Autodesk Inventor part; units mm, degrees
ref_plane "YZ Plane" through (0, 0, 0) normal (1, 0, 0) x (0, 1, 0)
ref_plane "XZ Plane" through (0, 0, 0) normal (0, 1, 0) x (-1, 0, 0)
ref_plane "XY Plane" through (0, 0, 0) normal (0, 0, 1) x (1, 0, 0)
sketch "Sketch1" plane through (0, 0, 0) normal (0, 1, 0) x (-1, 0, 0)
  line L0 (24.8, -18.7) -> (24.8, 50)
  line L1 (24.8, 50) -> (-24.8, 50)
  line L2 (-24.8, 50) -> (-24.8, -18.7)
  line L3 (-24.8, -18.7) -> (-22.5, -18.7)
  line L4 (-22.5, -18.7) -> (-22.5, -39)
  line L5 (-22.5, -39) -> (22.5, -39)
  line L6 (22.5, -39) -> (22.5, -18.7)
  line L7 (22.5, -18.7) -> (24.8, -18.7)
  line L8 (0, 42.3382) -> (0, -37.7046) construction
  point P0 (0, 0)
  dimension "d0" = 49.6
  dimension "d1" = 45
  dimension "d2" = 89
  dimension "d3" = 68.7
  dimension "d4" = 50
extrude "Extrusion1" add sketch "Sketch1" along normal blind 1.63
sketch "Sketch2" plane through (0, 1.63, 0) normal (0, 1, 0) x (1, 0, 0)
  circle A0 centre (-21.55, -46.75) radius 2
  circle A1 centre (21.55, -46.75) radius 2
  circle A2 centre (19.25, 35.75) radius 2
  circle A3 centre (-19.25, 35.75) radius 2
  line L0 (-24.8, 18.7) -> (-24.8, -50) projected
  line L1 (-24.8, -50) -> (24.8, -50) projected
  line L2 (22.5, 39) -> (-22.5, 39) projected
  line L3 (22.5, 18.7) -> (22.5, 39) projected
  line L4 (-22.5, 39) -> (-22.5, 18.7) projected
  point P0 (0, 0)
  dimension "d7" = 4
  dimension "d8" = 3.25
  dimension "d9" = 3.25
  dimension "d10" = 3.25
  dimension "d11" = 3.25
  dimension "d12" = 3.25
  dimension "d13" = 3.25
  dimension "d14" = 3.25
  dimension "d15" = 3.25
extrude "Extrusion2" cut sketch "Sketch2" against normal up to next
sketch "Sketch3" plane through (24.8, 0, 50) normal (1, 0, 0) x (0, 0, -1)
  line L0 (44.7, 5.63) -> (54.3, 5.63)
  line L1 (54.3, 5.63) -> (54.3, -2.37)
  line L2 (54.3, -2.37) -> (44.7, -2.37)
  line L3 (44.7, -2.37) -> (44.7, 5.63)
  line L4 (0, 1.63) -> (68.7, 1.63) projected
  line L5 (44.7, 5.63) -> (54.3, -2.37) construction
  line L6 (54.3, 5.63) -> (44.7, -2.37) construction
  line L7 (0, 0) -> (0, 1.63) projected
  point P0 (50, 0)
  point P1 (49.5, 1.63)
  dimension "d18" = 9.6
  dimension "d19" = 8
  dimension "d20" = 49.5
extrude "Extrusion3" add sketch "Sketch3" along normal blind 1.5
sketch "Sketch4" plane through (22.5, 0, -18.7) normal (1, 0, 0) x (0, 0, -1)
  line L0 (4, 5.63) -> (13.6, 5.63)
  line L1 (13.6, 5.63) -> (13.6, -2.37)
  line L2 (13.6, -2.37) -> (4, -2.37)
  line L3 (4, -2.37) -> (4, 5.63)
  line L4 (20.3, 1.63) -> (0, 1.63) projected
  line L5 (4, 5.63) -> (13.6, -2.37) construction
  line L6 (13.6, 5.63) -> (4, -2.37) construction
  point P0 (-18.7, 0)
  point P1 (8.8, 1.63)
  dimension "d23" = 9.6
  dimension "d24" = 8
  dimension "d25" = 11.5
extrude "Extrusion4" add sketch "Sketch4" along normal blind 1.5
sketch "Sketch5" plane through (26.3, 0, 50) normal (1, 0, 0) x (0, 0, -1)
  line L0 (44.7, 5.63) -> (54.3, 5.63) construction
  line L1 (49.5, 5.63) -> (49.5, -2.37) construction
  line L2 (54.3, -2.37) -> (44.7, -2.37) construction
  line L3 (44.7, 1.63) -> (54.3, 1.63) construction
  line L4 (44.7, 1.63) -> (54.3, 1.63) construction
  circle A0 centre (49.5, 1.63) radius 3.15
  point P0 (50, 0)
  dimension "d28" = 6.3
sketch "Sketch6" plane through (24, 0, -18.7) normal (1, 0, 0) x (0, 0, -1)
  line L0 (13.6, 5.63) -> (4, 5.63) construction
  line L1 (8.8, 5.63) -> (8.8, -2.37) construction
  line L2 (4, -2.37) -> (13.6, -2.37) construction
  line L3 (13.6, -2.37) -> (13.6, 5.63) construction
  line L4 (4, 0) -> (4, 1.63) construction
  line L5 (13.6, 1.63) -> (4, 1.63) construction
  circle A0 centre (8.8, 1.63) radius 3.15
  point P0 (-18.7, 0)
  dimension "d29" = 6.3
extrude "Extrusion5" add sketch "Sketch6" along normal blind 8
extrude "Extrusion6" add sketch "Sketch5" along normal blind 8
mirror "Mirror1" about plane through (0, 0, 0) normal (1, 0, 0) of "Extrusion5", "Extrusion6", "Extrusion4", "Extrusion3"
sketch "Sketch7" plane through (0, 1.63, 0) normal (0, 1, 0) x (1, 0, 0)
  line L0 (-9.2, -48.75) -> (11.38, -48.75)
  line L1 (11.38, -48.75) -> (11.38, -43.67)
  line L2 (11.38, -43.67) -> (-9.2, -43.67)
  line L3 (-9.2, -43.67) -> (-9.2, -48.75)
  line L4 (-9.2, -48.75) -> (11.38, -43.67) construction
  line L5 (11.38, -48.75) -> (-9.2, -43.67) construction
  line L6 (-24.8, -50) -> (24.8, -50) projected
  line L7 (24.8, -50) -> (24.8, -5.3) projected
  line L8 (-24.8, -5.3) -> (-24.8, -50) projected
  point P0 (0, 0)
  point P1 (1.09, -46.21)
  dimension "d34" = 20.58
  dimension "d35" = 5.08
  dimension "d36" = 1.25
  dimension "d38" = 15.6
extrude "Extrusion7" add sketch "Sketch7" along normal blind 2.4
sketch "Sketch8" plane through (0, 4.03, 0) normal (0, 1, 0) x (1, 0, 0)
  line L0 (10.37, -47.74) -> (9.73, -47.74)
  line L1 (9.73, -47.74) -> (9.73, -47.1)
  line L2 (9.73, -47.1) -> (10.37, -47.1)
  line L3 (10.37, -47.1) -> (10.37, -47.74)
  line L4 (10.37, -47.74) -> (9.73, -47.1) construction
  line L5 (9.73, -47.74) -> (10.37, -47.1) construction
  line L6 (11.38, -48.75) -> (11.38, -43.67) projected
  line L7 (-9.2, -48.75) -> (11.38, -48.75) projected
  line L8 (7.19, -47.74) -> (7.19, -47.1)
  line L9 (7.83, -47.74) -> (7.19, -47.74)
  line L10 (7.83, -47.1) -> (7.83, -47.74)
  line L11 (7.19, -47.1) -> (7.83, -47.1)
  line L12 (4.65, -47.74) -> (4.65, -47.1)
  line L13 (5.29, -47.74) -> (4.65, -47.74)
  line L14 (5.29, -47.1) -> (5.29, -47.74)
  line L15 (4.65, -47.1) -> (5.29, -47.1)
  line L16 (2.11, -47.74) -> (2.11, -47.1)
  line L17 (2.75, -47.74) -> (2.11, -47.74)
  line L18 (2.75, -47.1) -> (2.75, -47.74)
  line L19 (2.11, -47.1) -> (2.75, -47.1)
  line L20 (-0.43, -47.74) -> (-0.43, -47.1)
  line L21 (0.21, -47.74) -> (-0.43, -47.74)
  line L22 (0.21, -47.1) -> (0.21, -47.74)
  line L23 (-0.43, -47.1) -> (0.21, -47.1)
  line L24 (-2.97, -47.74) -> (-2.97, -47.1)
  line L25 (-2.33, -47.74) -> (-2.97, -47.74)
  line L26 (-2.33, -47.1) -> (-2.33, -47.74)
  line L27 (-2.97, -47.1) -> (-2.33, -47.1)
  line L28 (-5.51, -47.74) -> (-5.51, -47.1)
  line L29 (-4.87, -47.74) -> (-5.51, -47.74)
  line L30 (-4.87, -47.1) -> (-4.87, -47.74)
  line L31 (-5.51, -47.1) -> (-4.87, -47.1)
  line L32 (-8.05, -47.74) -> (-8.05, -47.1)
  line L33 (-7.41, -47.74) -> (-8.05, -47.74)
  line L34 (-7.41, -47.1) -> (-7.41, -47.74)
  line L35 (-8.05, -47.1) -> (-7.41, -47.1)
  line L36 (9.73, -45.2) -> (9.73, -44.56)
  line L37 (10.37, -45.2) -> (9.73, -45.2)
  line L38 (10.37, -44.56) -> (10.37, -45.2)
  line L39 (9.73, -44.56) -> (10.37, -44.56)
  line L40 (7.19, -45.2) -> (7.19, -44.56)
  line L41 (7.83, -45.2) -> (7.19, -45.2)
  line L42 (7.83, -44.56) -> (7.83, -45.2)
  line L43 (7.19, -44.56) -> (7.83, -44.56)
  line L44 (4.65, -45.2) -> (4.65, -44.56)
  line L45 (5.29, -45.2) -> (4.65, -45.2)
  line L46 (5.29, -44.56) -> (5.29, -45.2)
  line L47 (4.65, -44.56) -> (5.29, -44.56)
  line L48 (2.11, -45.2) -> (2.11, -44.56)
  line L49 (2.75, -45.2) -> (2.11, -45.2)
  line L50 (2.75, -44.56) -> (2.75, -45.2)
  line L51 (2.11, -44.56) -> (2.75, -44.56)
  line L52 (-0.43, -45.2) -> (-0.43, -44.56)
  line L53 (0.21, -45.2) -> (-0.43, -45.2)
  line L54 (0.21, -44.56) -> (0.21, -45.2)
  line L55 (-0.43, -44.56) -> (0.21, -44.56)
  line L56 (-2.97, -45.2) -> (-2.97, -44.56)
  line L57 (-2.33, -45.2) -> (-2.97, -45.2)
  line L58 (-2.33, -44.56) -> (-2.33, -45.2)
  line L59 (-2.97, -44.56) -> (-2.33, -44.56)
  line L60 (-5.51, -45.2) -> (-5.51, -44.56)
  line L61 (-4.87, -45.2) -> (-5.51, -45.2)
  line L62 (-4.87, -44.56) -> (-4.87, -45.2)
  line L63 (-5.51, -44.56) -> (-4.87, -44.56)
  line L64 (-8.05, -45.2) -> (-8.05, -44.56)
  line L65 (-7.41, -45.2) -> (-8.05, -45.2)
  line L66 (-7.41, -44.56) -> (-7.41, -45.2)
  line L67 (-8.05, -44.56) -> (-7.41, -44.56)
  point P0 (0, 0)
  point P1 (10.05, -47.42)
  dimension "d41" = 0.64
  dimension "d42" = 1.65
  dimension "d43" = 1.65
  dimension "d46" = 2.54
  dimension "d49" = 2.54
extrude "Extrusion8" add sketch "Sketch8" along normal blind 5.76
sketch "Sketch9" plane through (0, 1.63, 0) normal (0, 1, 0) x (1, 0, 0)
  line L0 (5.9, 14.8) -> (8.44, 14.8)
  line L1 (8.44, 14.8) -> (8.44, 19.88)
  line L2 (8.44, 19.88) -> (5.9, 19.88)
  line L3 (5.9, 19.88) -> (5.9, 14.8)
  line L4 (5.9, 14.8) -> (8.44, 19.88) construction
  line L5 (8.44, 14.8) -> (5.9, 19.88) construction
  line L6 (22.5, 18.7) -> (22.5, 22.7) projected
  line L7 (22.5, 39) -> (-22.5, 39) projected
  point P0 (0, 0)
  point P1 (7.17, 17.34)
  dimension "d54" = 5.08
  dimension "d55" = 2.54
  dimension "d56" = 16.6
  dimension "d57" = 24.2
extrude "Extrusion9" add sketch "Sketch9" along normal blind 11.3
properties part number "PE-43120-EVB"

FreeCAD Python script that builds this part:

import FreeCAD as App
import Part
import Sketcher

V = App.Vector

doc = App.newDocument("Part")
body = doc.addObject("PartDesign::Body", "Body")

# Sketch on XZ plane
sketch1 = doc.addObject("Sketcher::SketchObject", "Sketch")
body.addObject(sketch1)
sketch1.AttachmentSupport = (doc.XZ_Plane, [""])
sketch1.MapMode = "FlatFace"
sketch1.addGeometry([
    Part.LineSegment(V(-22.5, -18.7, 0), V(-24.8, -18.7, 0)),  # 0
    Part.LineSegment(V(-24.8, -18.7, 0), V(-24.8, 50, 0)),  # 1
    Part.LineSegment(V(-24.8, 50, 0), V(24.8, 50, 0)),  # 2
    Part.LineSegment(V(24.8, 50, 0), V(24.8, -18.7, 0)),  # 3
    Part.LineSegment(V(24.8, -18.7, 0), V(22.5, -18.7, 0)),  # 4
    Part.LineSegment(V(22.5, -18.7, 0), V(22.5, -39, 0)),  # 5
    Part.LineSegment(V(22.5, -39, 0), V(-22.5, -39, 0)),  # 6
    Part.LineSegment(V(-22.5, -39, 0), V(-22.5, -18.7, 0)),  # 7
], False)
sketch1.addConstraint([
    Sketcher.Constraint("Coincident", 0, 2, 1, 1),
    Sketcher.Constraint("Coincident", 1, 2, 2, 1),
    Sketcher.Constraint("Coincident", 2, 2, 3, 1),
    Sketcher.Constraint("Coincident", 3, 2, 4, 1),
    Sketcher.Constraint("Coincident", 4, 2, 5, 1),
    Sketcher.Constraint("Coincident", 5, 2, 6, 1),
    Sketcher.Constraint("Coincident", 6, 2, 7, 1),
    Sketcher.Constraint("Coincident", 7, 2, 0, 1),
    Sketcher.Constraint("Horizontal", 0),
    Sketcher.Constraint("Vertical", 1),
    Sketcher.Constraint("Horizontal", 2),
    Sketcher.Constraint("Vertical", 3),
    Sketcher.Constraint("Horizontal", 4),
    Sketcher.Constraint("Vertical", 5),
    Sketcher.Constraint("Horizontal", 6),
    Sketcher.Constraint("Vertical", 7),
    Sketcher.Constraint("Symmetric", 0, 2, 3, 2, -2),
    Sketcher.Constraint("Equal", 0, 4),
    Sketcher.Constraint("DistanceX", 6, 2, 6, 1, 45.0),
    Sketcher.Constraint("DistanceX", 2, 1, 2, 2, 49.6),
    Sketcher.Constraint("DistanceY", 1, 1, 1, 2, 68.7),
    Sketcher.Constraint("DistanceY", -1, 1, 1, 2, 50.0),
    Sketcher.Constraint("DistanceY", 5, 2, 2, 2, 89.0),
])
pad1 = doc.addObject("PartDesign::Pad", "Pad")
body.addObject(pad1)
pad1.Profile = sketch1
pad1.Length = 1.63
pad1.Reversed = True

# Sketch on XZ plane
sketch2 = doc.addObject("Sketcher::SketchObject", "Sketch001")
body.addObject(sketch2)
sketch2.AttachmentSupport = (doc.XZ_Plane, [""])
sketch2.MapMode = "FlatFace"
sketch2.AttachmentOffset = App.Placement(V(0, 0, -1.63), App.Rotation())
sketch2.addGeometry([
    Part.Circle(V(-21.6, 46.8, 0), V(0, 0, 1), 2),
    Part.Circle(V(21.6, 46.8, 0), V(0, 0, 1), 2),
    Part.Circle(V(19.2, -35.8, 0), V(0, 0, 1), 2),
    Part.Circle(V(-19.2, -35.8, 0), V(0, 0, 1), 2),
], False)
sketch2.addConstraint([
    Sketcher.Constraint("Equal", 0, 1),
    Sketcher.Constraint("Equal", 1, 2),
    Sketcher.Constraint("Equal", 2, 3),
    Sketcher.Constraint("Symmetric", 0, 3, 1, 3, -2),
    Sketcher.Constraint("Symmetric", 2, 3, 3, 3, -2),
    Sketcher.Constraint("Diameter", 0, 4.0),
    Sketcher.Constraint("DistanceX", 0, 3, 1, 3, 43.1),
    Sketcher.Constraint("DistanceX", 2, 3, 1, 3, 2.3),
    Sketcher.Constraint("DistanceY", 2, 3, 1, 3, 82.5),
    Sketcher.Constraint("DistanceY", -1, 1, 0, 3, 46.75),
])
pocket1 = doc.addObject("PartDesign::Pocket", "Pocket")
body.addObject(pocket1)
pocket1.Profile = sketch2
pocket1.Type = "UpToFirst"
pocket1.Reversed = True

# Sketch on YZ plane
sketch3 = doc.addObject("Sketcher::SketchObject", "Sketch002")
body.addObject(sketch3)
sketch3.AttachmentSupport = (doc.YZ_Plane, [""])
sketch3.MapMode = "FlatFace"
sketch3.AttachmentOffset = App.Placement(V(0, 0, 24.8), App.Rotation())
sketch3.addGeometry([
    Part.LineSegment(V(6, -4, 0), V(6, 5, 0)),
    Part.LineSegment(V(6, 5, 0), V(-2, 5, 0)),
    Part.LineSegment(V(-2, 5, 0), V(-2, -4, 0)),
    Part.LineSegment(V(-2, -4, 0), V(6, -4, 0)),
], False)
sketch3.addConstraint([
    Sketcher.Constraint("Coincident", 0, 2, 1, 1),
    Sketcher.Constraint("Coincident", 1, 2, 2, 1),
    Sketcher.Constraint("Coincident", 2, 2, 3, 1),
    Sketcher.Constraint("Coincident", 3, 2, 0, 1),
    Sketcher.Constraint("Vertical", 0),
    Sketcher.Constraint("Horizontal", 1),
    Sketcher.Constraint("Vertical", 2),
    Sketcher.Constraint("Horizontal", 3),
    Sketcher.Constraint("DistanceX", 1, 2, 1, 1, 8.0),
    Sketcher.Constraint("DistanceY", 0, 1, 0, 2, 9.6),
    Sketcher.Constraint("DistanceY", -1, 1, 0, 2, 5.3),
    Sketcher.Constraint("DistanceX", -1, 1, 0, 2, 5.63),
])
pad2 = doc.addObject("PartDesign::Pad", "Pad001")
body.addObject(pad2)
pad2.Profile = sketch3
pad2.Length = 1.5

# Sketch on YZ plane
sketch4 = doc.addObject("Sketcher::SketchObject", "Sketch003")
body.addObject(sketch4)
sketch4.AttachmentSupport = (doc.YZ_Plane, [""])
sketch4.MapMode = "FlatFace"
sketch4.AttachmentOffset = App.Placement(V(0, 0, 22.5), App.Rotation())
sketch4.addGeometry([
    Part.LineSegment(V(6, -32, 0), V(6, -23, 0)),
    Part.LineSegment(V(6, -23, 0), V(-2, -23, 0)),
    Part.LineSegment(V(-2, -23, 0), V(-2, -32, 0)),
    Part.LineSegment(V(-2, -32, 0), V(6, -32, 0)),
], False)
sketch4.addConstraint([
    Sketcher.Constraint("Coincident", 0, 2, 1, 1),
    Sketcher.Constraint("Coincident", 1, 2, 2, 1),
    Sketcher.Constraint("Coincident", 2, 2, 3, 1),
    Sketcher.Constraint("Coincident", 3, 2, 0, 1),
    Sketcher.Constraint("Vertical", 0),
    Sketcher.Constraint("Horizontal", 1),
    Sketcher.Constraint("Vertical", 2),
    Sketcher.Constraint("Horizontal", 3),
    Sketcher.Constraint("DistanceX", 1, 2, 1, 1, 8.0),
    Sketcher.Constraint("DistanceY", 0, 1, 0, 2, 9.6),
    Sketcher.Constraint("DistanceY", 0, 2, -1, 1, 22.7),
    Sketcher.Constraint("DistanceX", -1, 1, 0, 2, 5.63),
])
pad3 = doc.addObject("PartDesign::Pad", "Pad002")
body.addObject(pad3)
pad3.Profile = sketch4
pad3.Length = 1.5

# Sketch on YZ plane
sketch5 = doc.addObject("Sketcher::SketchObject", "Sketch004")
body.addObject(sketch5)
sketch5.AttachmentSupport = (doc.YZ_Plane, [""])
sketch5.MapMode = "FlatFace"
sketch5.AttachmentOffset = App.Placement(V(0, 0, 24), App.Rotation())
sketch5.addGeometry(Part.Circle(V(1.6, -27.5, 0), V(0, 0, 1), 3.1), False)
sketch5.addConstraint([
    Sketcher.Constraint("Diameter", 0, 6.3),
    Sketcher.Constraint("DistanceY", 0, 3, -1, 1, 27.5),
    Sketcher.Constraint("DistanceX", -1, 1, 0, 3, 1.63),
])
pad4 = doc.addObject("PartDesign::Pad", "Pad003")
body.addObject(pad4)
pad4.Profile = sketch5
pad4.Length = 8

# Sketch on YZ plane
sketch6 = doc.addObject("Sketcher::SketchObject", "Sketch005")
body.addObject(sketch6)
sketch6.AttachmentSupport = (doc.YZ_Plane, [""])
sketch6.MapMode = "FlatFace"
sketch6.AttachmentOffset = App.Placement(V(0, 0, 26.3), App.Rotation())
sketch6.addGeometry(Part.Circle(V(1.6, 0.5, 0), V(0, 0, 1), 3.1), False)
sketch6.addConstraint([
    Sketcher.Constraint("Diameter", 0, 6.3),
    Sketcher.Constraint("DistanceY", -1, 1, 0, 3, 0.5),
    Sketcher.Constraint("DistanceX", -1, 1, 0, 3, 1.63),
])
pad5 = doc.addObject("PartDesign::Pad", "Pad004")
body.addObject(pad5)
pad5.Profile = sketch6
pad5.Length = 8
doc.recompute()

mirrored = doc.addObject("PartDesign::Mirrored", "Mirrored")
body.addObject(mirrored)
mirrored.Originals = [pad4, pad5, pad3, pad2]
mirrored.MirrorPlane = (doc.YZ_Plane, [""])
body.Tip = mirrored

# Sketch on XZ plane
sketch7 = doc.addObject("Sketcher::SketchObject", "Sketch006")
body.addObject(sketch7)
sketch7.AttachmentSupport = (doc.XZ_Plane, [""])
sketch7.MapMode = "FlatFace"
sketch7.AttachmentOffset = App.Placement(V(0, 0, -1.63), App.Rotation())
sketch7.addGeometry([
    Part.LineSegment(V(-9, 44, 0), V(-9, 49, 0)),
    Part.LineSegment(V(-9, 49, 0), V(11, 49, 0)),
    Part.LineSegment(V(11, 49, 0), V(11, 44, 0)),
    Part.LineSegment(V(11, 44, 0), V(-9, 44, 0)),
], False)
sketch7.addConstraint([
    Sketcher.Constraint("Coincident", 0, 2, 1, 1),
    Sketcher.Constraint("Coincident", 1, 2, 2, 1),
    Sketcher.Constraint("Coincident", 2, 2, 3, 1),
    Sketcher.Constraint("Coincident", 3, 2, 0, 1),
    Sketcher.Constraint("Vertical", 0),
    Sketcher.Constraint("Horizontal", 1),
    Sketcher.Constraint("Vertical", 2),
    Sketcher.Constraint("Horizontal", 3),
    Sketcher.Constraint("DistanceX", 1, 1, 1, 2, 20.58),
    Sketcher.Constraint("DistanceY", 0, 1, 0, 2, 5.08),
    Sketcher.Constraint("DistanceX", 0, 2, -1, 1, 9.2),
    Sketcher.Constraint("DistanceY", -1, 1, 0, 2, 48.75),
])
pad6 = doc.addObject("PartDesign::Pad", "Pad005")
body.addObject(pad6)
pad6.Profile = sketch7
pad6.Length = 2.4
pad6.Reversed = True

# Sketch on XZ plane
sketch8 = doc.addObject("Sketcher::SketchObject", "Sketch007")
body.addObject(sketch8)
sketch8.AttachmentSupport = (doc.XZ_Plane, [""])
sketch8.MapMode = "FlatFace"
sketch8.AttachmentOffset = App.Placement(V(0, 0, -4.03), App.Rotation())
sketch8.addGeometry([
    Part.LineSegment(V(9.7, 47.7, 0), V(10.4, 47.7, 0)),  # 0
    Part.LineSegment(V(10.4, 47.7, 0), V(10.4, 47.1, 0)),  # 1
    Part.LineSegment(V(10.4, 47.1, 0), V(9.7, 47.1, 0)),  # 2
    Part.LineSegment(V(9.7, 47.1, 0), V(9.7, 47.7, 0)),  # 3
    Part.LineSegment(V(7.2, 47.1, 0), V(7.2, 47.7, 0)),  # 4
    Part.LineSegment(V(7.2, 47.7, 0), V(7.8, 47.7, 0)),  # 5
    Part.LineSegment(V(7.8, 47.7, 0), V(7.8, 47.1, 0)),  # 6
    Part.LineSegment(V(7.8, 47.1, 0), V(7.2, 47.1, 0)),  # 7
    Part.LineSegment(V(4.7, 47.1, 0), V(4.7, 47.7, 0)),  # 8
    Part.LineSegment(V(4.7, 47.7, 0), V(5.3, 47.7, 0)),  # 9
    Part.LineSegment(V(5.3, 47.7, 0), V(5.3, 47.1, 0)),  # 10
    Part.LineSegment(V(5.3, 47.1, 0), V(4.7, 47.1, 0)),  # 11
    Part.LineSegment(V(2.1, 47.1, 0), V(2.1, 47.7, 0)),  # 12
    Part.LineSegment(V(2.1, 47.7, 0), V(2.8, 47.7, 0)),  # 13
    Part.LineSegment(V(2.8, 47.7, 0), V(2.8, 47.1, 0)),  # 14
    Part.LineSegment(V(2.8, 47.1, 0), V(2.1, 47.1, 0)),  # 15
    Part.LineSegment(V(-0.4, 47.1, 0), V(-0.4, 47.7, 0)),  # 16
    Part.LineSegment(V(-0.4, 47.7, 0), V(0.2, 47.7, 0)),  # 17
    Part.LineSegment(V(0.2, 47.7, 0), V(0.2, 47.1, 0)),  # 18
    Part.LineSegment(V(0.2, 47.1, 0), V(-0.4, 47.1, 0)),  # 19
    Part.LineSegment(V(-3, 47.1, 0), V(-3, 47.7, 0)),  # 20
    Part.LineSegment(V(-3, 47.7, 0), V(-2.3, 47.7, 0)),  # 21
    Part.LineSegment(V(-2.3, 47.7, 0), V(-2.3, 47.1, 0)),  # 22
    Part.LineSegment(V(-2.3, 47.1, 0), V(-3, 47.1, 0)),  # 23
    Part.LineSegment(V(-5.5, 47.1, 0), V(-5.5, 47.7, 0)),  # 24
    Part.LineSegment(V(-5.5, 47.7, 0), V(-4.9, 47.7, 0)),  # 25
    Part.LineSegment(V(-4.9, 47.7, 0), V(-4.9, 47.1, 0)),  # 26
    Part.LineSegment(V(-4.9, 47.1, 0), V(-5.5, 47.1, 0)),  # 27
    Part.LineSegment(V(-8.1, 47.1, 0), V(-8.1, 47.7, 0)),  # 28
    Part.LineSegment(V(-8.1, 47.7, 0), V(-7.4, 47.7, 0)),  # 29
    Part.LineSegment(V(-7.4, 47.7, 0), V(-7.4, 47.1, 0)),  # 30
    Part.LineSegment(V(-7.4, 47.1, 0), V(-8.1, 47.1, 0)),  # 31
    Part.LineSegment(V(9.7, 44.6, 0), V(9.7, 45.2, 0)),  # 32
    Part.LineSegment(V(9.7, 45.2, 0), V(10.4, 45.2, 0)),  # 33
    Part.LineSegment(V(10.4, 45.2, 0), V(10.4, 44.6, 0)),  # 34
    Part.LineSegment(V(10.4, 44.6, 0), V(9.7, 44.6, 0)),  # 35
    Part.LineSegment(V(7.2, 44.6, 0), V(7.2, 45.2, 0)),  # 36
    Part.LineSegment(V(7.2, 45.2, 0), V(7.8, 45.2, 0)),  # 37
    Part.LineSegment(V(7.8, 45.2, 0), V(7.8, 44.6, 0)),  # 38
    Part.LineSegment(V(7.8, 44.6, 0), V(7.2, 44.6, 0)),  # 39
    Part.LineSegment(V(4.7, 44.6, 0), V(4.7, 45.2, 0)),  # 40
    Part.LineSegment(V(4.7, 45.2, 0), V(5.3, 45.2, 0)),  # 41
    Part.LineSegment(V(5.3, 45.2, 0), V(5.3, 44.6, 0)),  # 42
    Part.LineSegment(V(5.3, 44.6, 0), V(4.7, 44.6, 0)),  # 43
    Part.LineSegment(V(2.1, 44.6, 0), V(2.1, 45.2, 0)),  # 44
    Part.LineSegment(V(2.1, 45.2, 0), V(2.8, 45.2, 0)),  # 45
    Part.LineSegment(V(2.8, 45.2, 0), V(2.8, 44.6, 0)),  # 46
    Part.LineSegment(V(2.8, 44.6, 0), V(2.1, 44.6, 0)),  # 47
    Part.LineSegment(V(-0.4, 44.6, 0), V(-0.4, 45.2, 0)),  # 48
    Part.LineSegment(V(-0.4, 45.2, 0), V(0.2, 45.2, 0)),  # 49
    Part.LineSegment(V(0.2, 45.2, 0), V(0.2, 44.6, 0)),  # 50
    Part.LineSegment(V(0.2, 44.6, 0), V(-0.4, 44.6, 0)),  # 51
    Part.LineSegment(V(-3, 44.6, 0), V(-3, 45.2, 0)),  # 52
    Part.LineSegment(V(-3, 45.2, 0), V(-2.3, 45.2, 0)),  # 53
    Part.LineSegment(V(-2.3, 45.2, 0), V(-2.3, 44.6, 0)),  # 54
    Part.LineSegment(V(-2.3, 44.6, 0), V(-3, 44.6, 0)),  # 55
    Part.LineSegment(V(-5.5, 44.6, 0), V(-5.5, 45.2, 0)),  # 56
    Part.LineSegment(V(-5.5, 45.2, 0), V(-4.9, 45.2, 0)),  # 57
    Part.LineSegment(V(-4.9, 45.2, 0), V(-4.9, 44.6, 0)),  # 58
    Part.LineSegment(V(-4.9, 44.6, 0), V(-5.5, 44.6, 0)),  # 59
    Part.LineSegment(V(-8.1, 44.6, 0), V(-8.1, 45.2, 0)),  # 60
    Part.LineSegment(V(-8.1, 45.2, 0), V(-7.4, 45.2, 0)),  # 61
    Part.LineSegment(V(-7.4, 45.2, 0), V(-7.4, 44.6, 0)),  # 62
    Part.LineSegment(V(-7.4, 44.6, 0), V(-8.1, 44.6, 0)),  # 63
], False)
sketch8.addConstraint([
    Sketcher.Constraint("Coincident", 0, 2, 1, 1),
    Sketcher.Constraint("Coincident", 1, 2, 2, 1),
    Sketcher.Constraint("Coincident", 2, 2, 3, 1),
    Sketcher.Constraint("Coincident", 3, 2, 0, 1),
    Sketcher.Constraint("Coincident", 4, 2, 5, 1),
    Sketcher.Constraint("Coincident", 5, 2, 6, 1),
    Sketcher.Constraint("Coincident", 6, 2, 7, 1),
    Sketcher.Constraint("Coincident", 7, 2, 4, 1),
    Sketcher.Constraint("Coincident", 8, 2, 9, 1),
    Sketcher.Constraint("Coincident", 9, 2, 10, 1),
    Sketcher.Constraint("Coincident", 10, 2, 11, 1),
    Sketcher.Constraint("Coincident", 11, 2, 8, 1),
    Sketcher.Constraint("Coincident", 12, 2, 13, 1),
    Sketcher.Constraint("Coincident", 13, 2, 14, 1),
    Sketcher.Constraint("Coincident", 14, 2, 15, 1),
    Sketcher.Constraint("Coincident", 15, 2, 12, 1),
    Sketcher.Constraint("Coincident", 16, 2, 17, 1),
    Sketcher.Constraint("Coincident", 17, 2, 18, 1),
    Sketcher.Constraint("Coincident", 18, 2, 19, 1),
    Sketcher.Constraint("Coincident", 19, 2, 16, 1),
    Sketcher.Constraint("Coincident", 20, 2, 21, 1),
    Sketcher.Constraint("Coincident", 21, 2, 22, 1),
    Sketcher.Constraint("Coincident", 22, 2, 23, 1),
    Sketcher.Constraint("Coincident", 23, 2, 20, 1),
    Sketcher.Constraint("Coincident", 24, 2, 25, 1),
    Sketcher.Constraint("Coincident", 25, 2, 26, 1),
    Sketcher.Constraint("Coincident", 26, 2, 27, 1),
    Sketcher.Constraint("Coincident", 27, 2, 24, 1),
    Sketcher.Constraint("Coincident", 28, 2, 29, 1),
    Sketcher.Constraint("Coincident", 29, 2, 30, 1),
    Sketcher.Constraint("Coincident", 30, 2, 31, 1),
    Sketcher.Constraint("Coincident", 31, 2, 28, 1),
    Sketcher.Constraint("Coincident", 32, 2, 33, 1),
    Sketcher.Constraint("Coincident", 33, 2, 34, 1),
    Sketcher.Constraint("Coincident", 34, 2, 35, 1),
    Sketcher.Constraint("Coincident", 35, 2, 32, 1),
    Sketcher.Constraint("Coincident", 36, 2, 37, 1),
    Sketcher.Constraint("Coincident", 37, 2, 38, 1),
    Sketcher.Constraint("Coincident", 38, 2, 39, 1),
    Sketcher.Constraint("Coincident", 39, 2, 36, 1),
    Sketcher.Constraint("Coincident", 40, 2, 41, 1),
    Sketcher.Constraint("Coincident", 41, 2, 42, 1),
    Sketcher.Constraint("Coincident", 42, 2, 43, 1),
    Sketcher.Constraint("Coincident", 43, 2, 40, 1),
    Sketcher.Constraint("Coincident", 44, 2, 45, 1),
    Sketcher.Constraint("Coincident", 45, 2, 46, 1),
    Sketcher.Constraint("Coincident", 46, 2, 47, 1),
    Sketcher.Constraint("Coincident", 47, 2, 44, 1),
    Sketcher.Constraint("Coincident", 48, 2, 49, 1),
    Sketcher.Constraint("Coincident", 49, 2, 50, 1),
    Sketcher.Constraint("Coincident", 50, 2, 51, 1),
    Sketcher.Constraint("Coincident", 51, 2, 48, 1),
    Sketcher.Constraint("Coincident", 52, 2, 53, 1),
    Sketcher.Constraint("Coincident", 53, 2, 54, 1),
    Sketcher.Constraint("Coincident", 54, 2, 55, 1),
    Sketcher.Constraint("Coincident", 55, 2, 52, 1),
    Sketcher.Constraint("Coincident", 56, 2, 57, 1),
    Sketcher.Constraint("Coincident", 57, 2, 58, 1),
    Sketcher.Constraint("Coincident", 58, 2, 59, 1),
    Sketcher.Constraint("Coincident", 59, 2, 56, 1),
    Sketcher.Constraint("Coincident", 60, 2, 61, 1),
    Sketcher.Constraint("Coincident", 61, 2, 62, 1),
    Sketcher.Constraint("Coincident", 62, 2, 63, 1),
    Sketcher.Constraint("Coincident", 63, 2, 60, 1),
    Sketcher.Constraint("Horizontal", 0),
    Sketcher.Constraint("Vertical", 1),
    Sketcher.Constraint("Horizontal", 2),
    Sketcher.Constraint("Vertical", 3),
    Sketcher.Constraint("Vertical", 4),
    Sketcher.Constraint("Horizontal", 5),
    Sketcher.Constraint("Vertical", 6),
    Sketcher.Constraint("Horizontal", 7),
    Sketcher.Constraint("Vertical", 8),
    Sketcher.Constraint("Horizontal", 9),
    Sketcher.Constraint("Vertical", 10),
    Sketcher.Constraint("Horizontal", 11),
    Sketcher.Constraint("Vertical", 12),
    Sketcher.Constraint("Horizontal", 13),
    Sketcher.Constraint("Vertical", 14),
    Sketcher.Constraint("Horizontal", 15),
    Sketcher.Constraint("Vertical", 16),
    Sketcher.Constraint("Horizontal", 17),
    Sketcher.Constraint("Vertical", 18),
    Sketcher.Constraint("Horizontal", 19),
    Sketcher.Constraint("Vertical", 20),
    Sketcher.Constraint("Horizontal", 21),
    Sketcher.Constraint("Vertical", 22),
    Sketcher.Constraint("Horizontal", 23),
    Sketcher.Constraint("Vertical", 24),
    Sketcher.Constraint("Horizontal", 25),
    Sketcher.Constraint("Vertical", 26),
    Sketcher.Constraint("Horizontal", 27),
    Sketcher.Constraint("Vertical", 28),
    Sketcher.Constraint("Horizontal", 29),
    Sketcher.Constraint("Vertical", 30),
    Sketcher.Constraint("Horizontal", 31),
    Sketcher.Constraint("Vertical", 32),
    Sketcher.Constraint("Horizontal", 33),
    Sketcher.Constraint("Vertical", 34),
    Sketcher.Constraint("Horizontal", 35),
    Sketcher.Constraint("Vertical", 36),
    Sketcher.Constraint("Horizontal", 37),
    Sketcher.Constraint("Vertical", 38),
    Sketcher.Constraint("Horizontal", 39),
    Sketcher.Constraint("Vertical", 40),
    Sketcher.Constraint("Horizontal", 41),
    Sketcher.Constraint("Vertical", 42),
    Sketcher.Constraint("Horizontal", 43),
    Sketcher.Constraint("Vertical", 44),
    Sketcher.Constraint("Horizontal", 45),
    Sketcher.Constraint("Vertical", 46),
    Sketcher.Constraint("Horizontal", 47),
    Sketcher.Constraint("Vertical", 48),
    Sketcher.Constraint("Horizontal", 49),
    Sketcher.Constraint("Vertical", 50),
    Sketcher.Constraint("Horizontal", 51),
    Sketcher.Constraint("Vertical", 52),
    Sketcher.Constraint("Horizontal", 53),
    Sketcher.Constraint("Vertical", 54),
    Sketcher.Constraint("Horizontal", 55),
    Sketcher.Constraint("Vertical", 56),
    Sketcher.Constraint("Horizontal", 57),
    Sketcher.Constraint("Vertical", 58),
    Sketcher.Constraint("Horizontal", 59),
    Sketcher.Constraint("Vertical", 60),
    Sketcher.Constraint("Horizontal", 61),
    Sketcher.Constraint("Vertical", 62),
    Sketcher.Constraint("Horizontal", 63),
    Sketcher.Constraint("Horizontal", 3, 2, 4, 2),
    Sketcher.Constraint("Horizontal", 2, 2, 6, 2),
    Sketcher.Constraint("Horizontal", 5, 2, 8, 2),
    Sketcher.Constraint("Horizontal", 7, 2, 10, 2),
    Sketcher.Constraint("Horizontal", 9, 2, 12, 2),
    Sketcher.Constraint("Horizontal", 11, 2, 14, 2),
    Sketcher.Constraint("Horizontal", 13, 2, 16, 2),
    Sketcher.Constraint("Horizontal", 15, 2, 18, 2),
    Sketcher.Constraint("Horizontal", 17, 2, 20, 2),
    Sketcher.Constraint("Horizontal", 19, 2, 22, 2),
    Sketcher.Constraint("Horizontal", 21, 2, 24, 2),
    Sketcher.Constraint("Horizontal", 23, 2, 26, 2),
    Sketcher.Constraint("Horizontal", 25, 2, 28, 2),
    Sketcher.Constraint("Horizontal", 27, 2, 30, 2),
    Sketcher.Constraint("Horizontal", 33, 2, 36, 2),
    Sketcher.Constraint("Horizontal", 35, 2, 38, 2),
    Sketcher.Constraint("Horizontal", 37, 2, 40, 2),
    Sketcher.Constraint("Horizontal", 39, 2, 42, 2),
    Sketcher.Constraint("Horizontal", 41, 2, 44, 2),
    Sketcher.Constraint("Horizontal", 43, 2, 46, 2),
    Sketcher.Constraint("Horizontal", 45, 2, 48, 2),
    Sketcher.Constraint("Horizontal", 47, 2, 50, 2),
    Sketcher.Constraint("Horizontal", 49, 2, 52, 2),
    Sketcher.Constraint("Horizontal", 51, 2, 54, 2),
    Sketcher.Constraint("Horizontal", 53, 2, 56, 2),
    Sketcher.Constraint("Horizontal", 55, 2, 58, 2),
    Sketcher.Constraint("Horizontal", 57, 2, 60, 2),
    Sketcher.Constraint("Horizontal", 59, 2, 62, 2),
    Sketcher.Constraint("Vertical", 3, 2, 32, 2),
    Sketcher.Constraint("Vertical", 1, 2, 33, 2),
    Sketcher.Constraint("Vertical", 7, 2, 36, 2),
    Sketcher.Constraint("Vertical", 6, 2, 37, 2),
    Sketcher.Constraint("Vertical", 11, 2, 40, 2),
    Sketcher.Constraint("Vertical", 10, 2, 41, 2),
    Sketcher.Constraint("Vertical", 15, 2, 44, 2),
    Sketcher.Constraint("Vertical", 14, 2, 45, 2),
    Sketcher.Constraint("Vertical", 19, 2, 48, 2),
    Sketcher.Constraint("Vertical", 18, 2, 49, 2),
    Sketcher.Constraint("Vertical", 23, 2, 52, 2),
    Sketcher.Constraint("Vertical", 22, 2, 53, 2),
    Sketcher.Constraint("Vertical", 27, 2, 56, 2),
    Sketcher.Constraint("Vertical", 26, 2, 57, 2),
    Sketcher.Constraint("Vertical", 31, 2, 60, 2),
    Sketcher.Constraint("Vertical", 30, 2, 61, 2),
    Sketcher.Constraint("Equal", 2, 5),
    Sketcher.Constraint("Equal", 7, 9),
    Sketcher.Constraint("Equal", 11, 13),
    Sketcher.Constraint("Equal", 15, 17),
    Sketcher.Constraint("Equal", 19, 21),
    Sketcher.Constraint("Equal", 23, 25),
    Sketcher.Constraint("Equal", 27, 29),
    Sketcher.Constraint("Equal", 63, 1),
    Sketcher.Constraint("Equal", 30, 32),
    Sketcher.Constraint("DistanceX", 0, 1, 0, 2, 0.64),
    Sketcher.Constraint("DistanceY", -1, 1, 1, 2, 47.1),
    Sketcher.Constraint("DistanceY", -1, 1, 32, 2, 45.2),
    Sketcher.Constraint("DistanceX", -1, 1, 0, 2, 10.37),
    Sketcher.Constraint("DistanceX", -1, 1, 4, 2, 7.19),
    Sketcher.Constraint("DistanceX", -1, 1, 8, 2, 4.65),
    Sketcher.Constraint("DistanceX", -1, 1, 12, 2, 2.11),
    Sketcher.Constraint("DistanceX", 16, 2, -1, 1, 0.43),
    Sketcher.Constraint("DistanceX", 20, 2, -1, 1, 2.97),
    Sketcher.Constraint("DistanceX", 24, 2, -1, 1, 5.51),
    Sketcher.Constraint("DistanceX", 28, 2, -1, 1, 8.05),
])
pad7 = doc.addObject("PartDesign::Pad", "Pad006")
body.addObject(pad7)
pad7.Profile = sketch8
pad7.Length = 5.76
pad7.Reversed = True

# Sketch on XZ plane
sketch9 = doc.addObject("Sketcher::SketchObject", "Sketch008")
body.addObject(sketch9)
sketch9.AttachmentSupport = (doc.XZ_Plane, [""])
sketch9.MapMode = "FlatFace"
sketch9.AttachmentOffset = App.Placement(V(0, 0, -1.63), App.Rotation())
sketch9.addGeometry([
    Part.LineSegment(V(5.9, -19.9, 0), V(5.9, -14.8, 0)),
    Part.LineSegment(V(5.9, -14.8, 0), V(8.4, -14.8, 0)),
    Part.LineSegment(V(8.4, -14.8, 0), V(8.4, -19.9, 0)),
    Part.LineSegment(V(8.4, -19.9, 0), V(5.9, -19.9, 0)),
], False)
sketch9.addConstraint([
    Sketcher.Constraint("Coincident", 0, 2, 1, 1),
    Sketcher.Constraint("Coincident", 1, 2, 2, 1),
    Sketcher.Constraint("Coincident", 2, 2, 3, 1),
    Sketcher.Constraint("Coincident", 3, 2, 0, 1),
    Sketcher.Constraint("Vertical", 0),
    Sketcher.Constraint("Horizontal", 1),
    Sketcher.Constraint("Vertical", 2),
    Sketcher.Constraint("Horizontal", 3),
    Sketcher.Constraint("DistanceX", 1, 1, 1, 2, 2.54),
    Sketcher.Constraint("DistanceY", 0, 1, 0, 2, 5.08),
    Sketcher.Constraint("DistanceX", -1, 1, 0, 2, 5.9),
    Sketcher.Constraint("DistanceY", 0, 2, -1, 1, 14.8),
])
pad8 = doc.addObject("PartDesign::Pad", "Pad007")
body.addObject(pad8)
pad8.Profile = sketch9
pad8.Length = 11.3
pad8.Reversed = True

doc.recompute()
